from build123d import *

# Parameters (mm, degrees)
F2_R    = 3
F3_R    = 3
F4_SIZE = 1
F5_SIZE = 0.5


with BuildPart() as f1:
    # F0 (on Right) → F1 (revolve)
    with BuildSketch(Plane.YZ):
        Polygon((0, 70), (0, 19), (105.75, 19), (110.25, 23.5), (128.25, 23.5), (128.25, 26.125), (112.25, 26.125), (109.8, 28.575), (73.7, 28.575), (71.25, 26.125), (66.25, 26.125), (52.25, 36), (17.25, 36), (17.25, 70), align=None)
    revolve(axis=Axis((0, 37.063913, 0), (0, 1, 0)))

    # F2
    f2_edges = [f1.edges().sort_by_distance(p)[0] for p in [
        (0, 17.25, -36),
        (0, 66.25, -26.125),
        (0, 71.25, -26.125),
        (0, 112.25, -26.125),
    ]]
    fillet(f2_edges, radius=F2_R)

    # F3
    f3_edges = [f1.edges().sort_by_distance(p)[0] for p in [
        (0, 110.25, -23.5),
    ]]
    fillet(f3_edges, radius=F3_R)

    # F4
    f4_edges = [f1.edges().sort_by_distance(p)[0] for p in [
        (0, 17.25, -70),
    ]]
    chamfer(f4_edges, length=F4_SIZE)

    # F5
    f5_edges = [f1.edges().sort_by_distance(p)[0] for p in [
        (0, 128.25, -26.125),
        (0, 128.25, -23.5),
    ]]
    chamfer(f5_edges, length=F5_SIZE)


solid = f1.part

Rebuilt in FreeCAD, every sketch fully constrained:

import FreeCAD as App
import Part
import Sketcher

V = App.Vector
Q = App.Units.Quantity


def edges_at(feature, points):
    """Names of the edges that pass closest to the given points."""
    edges = feature.Shape.Edges
    near = lambda p: min(range(len(edges)), key=lambda i: edges[i].distToShape(Part.Vertex(*p))[0])
    return sorted({f"Edge{near(p) + 1}" for p in points})

doc = App.newDocument("Part")
body = doc.addObject("PartDesign::Body", "Body")

# Sketch on YZ plane
sketch1 = body.newObject("Sketcher::SketchObject", "Sketch")
sketch1.AttachmentSupport = (doc.getObject("YZ_Plane"), [""])
sketch1.MapMode = "FlatFace"
sketch1.addGeometry(Part.LineSegment(V(0, 70, 0), V(0, 19, 0)), False)
sketch1.addGeometry(Part.LineSegment(V(0, 19, 0), V(105.75, 19, 0)), False)
sketch1.addGeometry(Part.LineSegment(V(105.75, 19, 0), V(110.25, 23.5, 0)), False)
sketch1.addGeometry(Part.LineSegment(V(110.25, 23.5, 0), V(128.25, 23.5, 0)), False)
sketch1.addGeometry(Part.LineSegment(V(128.25, 23.5, 0), V(128.25, 26.125, 0)), False)
sketch1.addGeometry(Part.LineSegment(V(128.25, 26.125, 0), V(112.25, 26.125, 0)), False)
sketch1.addGeometry(Part.LineSegment(V(112.25, 26.125, 0), V(109.8, 28.575, 0)), False)
sketch1.addGeometry(Part.LineSegment(V(109.8, 28.575, 0), V(73.7, 28.575, 0)), False)
sketch1.addGeometry(Part.LineSegment(V(73.7, 28.575, 0), V(71.25, 26.125, 0)), False)
sketch1.addGeometry(Part.LineSegment(V(71.25, 26.125, 0), V(66.25, 26.125, 0)), False)
sketch1.addGeometry(Part.LineSegment(V(66.25, 26.125, 0), V(52.25, 36, 0)), False)
sketch1.addGeometry(Part.LineSegment(V(52.25, 36, 0), V(17.25, 36, 0)), False)
sketch1.addGeometry(Part.LineSegment(V(17.25, 36, 0), V(17.25, 70, 0)), False)
sketch1.addGeometry(Part.LineSegment(V(17.25, 70, 0), V(0, 70, 0)), False)
sketch1.addConstraint(Sketcher.Constraint("Coincident", 0, 2, 1, 1))
sketch1.addConstraint(Sketcher.Constraint("Coincident", 1, 2, 2, 1))
sketch1.addConstraint(Sketcher.Constraint("Coincident", 2, 2, 3, 1))
sketch1.addConstraint(Sketcher.Constraint("Coincident", 3, 2, 4, 1))
sketch1.addConstraint(Sketcher.Constraint("Coincident", 4, 2, 5, 1))
sketch1.addConstraint(Sketcher.Constraint("Coincident", 5, 2, 6, 1))
sketch1.addConstraint(Sketcher.Constraint("Coincident", 6, 2, 7, 1))
sketch1.addConstraint(Sketcher.Constraint("Coincident", 7, 2, 8, 1))
sketch1.addConstraint(Sketcher.Constraint("Coincident", 8, 2, 9, 1))
sketch1.addConstraint(Sketcher.Constraint("Coincident", 9, 2, 10, 1))
sketch1.addConstraint(Sketcher.Constraint("Coincident", 10, 2, 11, 1))
sketch1.addConstraint(Sketcher.Constraint("Coincident", 11, 2, 12, 1))
sketch1.addConstraint(Sketcher.Constraint("Coincident", 12, 2, 13, 1))
sketch1.addConstraint(Sketcher.Constraint("Coincident", 13, 2, 0, 1))
sketch1.addConstraint(Sketcher.Constraint("Vertical", 0))
sketch1.addConstraint(Sketcher.Constraint("Horizontal", 1))
sketch1.addConstraint(Sketcher.Constraint("Horizontal", 3))
sketch1.addConstraint(Sketcher.Constraint("Vertical", 4))
sketch1.addConstraint(Sketcher.Constraint("Horizontal", 5))
sketch1.addConstraint(Sketcher.Constraint("Horizontal", 7))
sketch1.addConstraint(Sketcher.Constraint("Horizontal", 9))
sketch1.addConstraint(Sketcher.Constraint("Horizontal", 11))
sketch1.addConstraint(Sketcher.Constraint("Vertical", 12))
sketch1.addConstraint(Sketcher.Constraint("Horizontal", 13))
sketch1.addConstraint(Sketcher.Constraint("PointOnObject", 0, 2, -2))
sketch1.addConstraint(Sketcher.Constraint("Perpendicular", 2, 6))
sketch1.addConstraint(Sketcher.Constraint("Perpendicular", 6, 8))
sketch1.addConstraint(Sketcher.Constraint("Horizontal", 5, 2, 8, 2))
sketch1.addConstraint(Sketcher.Constraint("Equal", 6, 8))
sketch1.addConstraint(Sketcher.Constraint("DistanceX", 3, 1, 3, 2, Q("18 mm")))
sketch1.addConstraint(Sketcher.Constraint("DistanceX", 5, 2, 5, 1, Q("16 mm")))
sketch1.addConstraint(Sketcher.Constraint("DistanceX", 9, 2, 9, 1, Q("5 mm")))
sketch1.addConstraint(Sketcher.Constraint("DistanceX", 11, 2, 11, 1, Q("35 mm")))
sketch1.addConstraint(Sketcher.Constraint("DistanceY", 0, 2, 0, 1, Q("51 mm")))
sketch1.addConstraint(Sketcher.Constraint("DistanceY", 12, 1, 12, 2, Q("34 mm")))
sketch1.addConstraint(Sketcher.Constraint("DistanceX", 7, 2, 7, 1, Q("36.1 mm")))
sketch1.addConstraint(Sketcher.Constraint("DistanceY", -1, 1, 0, 2, Q("19 mm")))
sketch1.addConstraint(Sketcher.Constraint("DistanceX", 8, 2, 2, 2, Q("39 mm")))
sketch1.addConstraint(Sketcher.Constraint("DistanceX", 10, 2, 9, 2, Q("14 mm")))
sketch1.addConstraint(Sketcher.Constraint("DistanceX", 1, 1, 1, 2, Q("105.75 mm")))
sketch1.addConstraint(Sketcher.Constraint("DistanceX", 13, 2, 13, 1, Q("17.25 mm")))
sketch1.addConstraint(Sketcher.Constraint("DistanceY", 4, 1, 4, 2, Q("2.625 mm")))
revolution = body.newObject("PartDesign::Revolution", "Revolution")
revolution.Profile = sketch1
revolution.ReferenceAxis = (sketch1, ["H_Axis"])
revolution.Angle = 360
doc.recompute()

fillet = body.newObject("PartDesign::Fillet", "Fillet")
fillet.Base = (revolution, edges_at(revolution, [
    (0, 17.25, -36),
    (0, 66.25, -26.125),
    (0, 71.25, -26.125),
    (0, 112.25, -26.125),
]))
fillet.Radius = 3
doc.recompute()

fillet2 = body.newObject("PartDesign::Fillet", "Fillet001")
fillet2.Base = (fillet, edges_at(fillet, [(0, 110.25, -23.5)]))
fillet2.Radius = 3
doc.recompute()

chamfer = body.newObject("PartDesign::Chamfer", "Chamfer")
chamfer.Base = (fillet2, edges_at(fillet2, [(0, 17.25, -70)]))
chamfer.Size = 1
doc.recompute()

chamfer2 = body.newObject("PartDesign::Chamfer", "Chamfer001")
chamfer2.Base = (chamfer, edges_at(chamfer, [(0, 128.25, -26.125), (0, 128.25, -23.5)]))
chamfer2.Size = 0.5

doc.recompute()
